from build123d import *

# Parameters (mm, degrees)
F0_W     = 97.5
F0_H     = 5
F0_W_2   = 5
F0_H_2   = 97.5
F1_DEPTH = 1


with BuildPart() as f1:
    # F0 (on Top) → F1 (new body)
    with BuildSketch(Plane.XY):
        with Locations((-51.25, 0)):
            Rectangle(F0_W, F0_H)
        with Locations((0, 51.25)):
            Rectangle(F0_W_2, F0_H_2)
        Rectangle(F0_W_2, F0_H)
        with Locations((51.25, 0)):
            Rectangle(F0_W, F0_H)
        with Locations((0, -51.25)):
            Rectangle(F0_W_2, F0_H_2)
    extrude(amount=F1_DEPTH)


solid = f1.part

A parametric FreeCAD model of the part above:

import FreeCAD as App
import Part
import Sketcher

V = App.Vector
Q = App.Units.Quantity


def add_polygon(sketch, points):
    """Adds a closed chain of lines whose ends are joined by coincident constraints."""
    first, n = sketch.GeometryCount, len(points)
    for a, b in zip(points, points[1:] + points[:1]):
        sketch.addGeometry(Part.LineSegment(App.Vector(*a, 0), App.Vector(*b, 0)), False)
    for i in range(n):
        sketch.addConstraint(Sketcher.Constraint("Coincident", first + i, 2, first + (i + 1) % n, 1))

doc = App.newDocument("Part")
body = doc.addObject("PartDesign::Body", "Body")

# Sketch on XY plane
sketch1 = body.newObject("Sketcher::SketchObject", "Sketch")
sketch1.AttachmentSupport = (doc.getObject("XY_Plane"), [""])
sketch1.MapMode = "FlatFace"
add_polygon(sketch1, [(-100, 2), (-100, -2), (-2, -2), (-2, -100), (2, -100), (2, -2), (100, -2), (100, 2), (2, 2), (2, 100), (-2, 100), (-2, 2)])  # lines 0-11
sketch1.addConstraint([
    Sketcher.Constraint("Vertical", 0),
    Sketcher.Constraint("Horizontal", 1),
    Sketcher.Constraint("Vertical", 2),
    Sketcher.Constraint("Horizontal", 3),
    Sketcher.Constraint("Vertical", 4),
    Sketcher.Constraint("Horizontal", 5),
    Sketcher.Constraint("Vertical", 6),
    Sketcher.Constraint("Horizontal", 7),
    Sketcher.Constraint("Vertical", 8),
    Sketcher.Constraint("Horizontal", 9),
    Sketcher.Constraint("Vertical", 10),
    Sketcher.Constraint("Horizontal", 11),
    Sketcher.Constraint("Symmetric", 0, 2, 6, 2, -1, 1),
    Sketcher.Constraint("Symmetric", 2, 2, 8, 2, -1, 1),
    Sketcher.Constraint("Symmetric", 4, 2, 10, 2, -1, 1),
    Sketcher.Constraint("Symmetric", 1, 2, 4, 2, -2),
    Sketcher.Constraint("Equal", 9, 0),
    Sketcher.Constraint("Equal", 11, 2),
    Sketcher.Constraint("DistanceX", 3, 1, 3, 2, Q("5 mm")),
    Sketcher.Constraint("DistanceX", 1, 1, 1, 2, Q("97.5 mm")),
])
pad1 = body.newObject("PartDesign::Pad", "Pad")
pad1.Profile = sketch1
pad1.Length = 1

doc.recompute()
